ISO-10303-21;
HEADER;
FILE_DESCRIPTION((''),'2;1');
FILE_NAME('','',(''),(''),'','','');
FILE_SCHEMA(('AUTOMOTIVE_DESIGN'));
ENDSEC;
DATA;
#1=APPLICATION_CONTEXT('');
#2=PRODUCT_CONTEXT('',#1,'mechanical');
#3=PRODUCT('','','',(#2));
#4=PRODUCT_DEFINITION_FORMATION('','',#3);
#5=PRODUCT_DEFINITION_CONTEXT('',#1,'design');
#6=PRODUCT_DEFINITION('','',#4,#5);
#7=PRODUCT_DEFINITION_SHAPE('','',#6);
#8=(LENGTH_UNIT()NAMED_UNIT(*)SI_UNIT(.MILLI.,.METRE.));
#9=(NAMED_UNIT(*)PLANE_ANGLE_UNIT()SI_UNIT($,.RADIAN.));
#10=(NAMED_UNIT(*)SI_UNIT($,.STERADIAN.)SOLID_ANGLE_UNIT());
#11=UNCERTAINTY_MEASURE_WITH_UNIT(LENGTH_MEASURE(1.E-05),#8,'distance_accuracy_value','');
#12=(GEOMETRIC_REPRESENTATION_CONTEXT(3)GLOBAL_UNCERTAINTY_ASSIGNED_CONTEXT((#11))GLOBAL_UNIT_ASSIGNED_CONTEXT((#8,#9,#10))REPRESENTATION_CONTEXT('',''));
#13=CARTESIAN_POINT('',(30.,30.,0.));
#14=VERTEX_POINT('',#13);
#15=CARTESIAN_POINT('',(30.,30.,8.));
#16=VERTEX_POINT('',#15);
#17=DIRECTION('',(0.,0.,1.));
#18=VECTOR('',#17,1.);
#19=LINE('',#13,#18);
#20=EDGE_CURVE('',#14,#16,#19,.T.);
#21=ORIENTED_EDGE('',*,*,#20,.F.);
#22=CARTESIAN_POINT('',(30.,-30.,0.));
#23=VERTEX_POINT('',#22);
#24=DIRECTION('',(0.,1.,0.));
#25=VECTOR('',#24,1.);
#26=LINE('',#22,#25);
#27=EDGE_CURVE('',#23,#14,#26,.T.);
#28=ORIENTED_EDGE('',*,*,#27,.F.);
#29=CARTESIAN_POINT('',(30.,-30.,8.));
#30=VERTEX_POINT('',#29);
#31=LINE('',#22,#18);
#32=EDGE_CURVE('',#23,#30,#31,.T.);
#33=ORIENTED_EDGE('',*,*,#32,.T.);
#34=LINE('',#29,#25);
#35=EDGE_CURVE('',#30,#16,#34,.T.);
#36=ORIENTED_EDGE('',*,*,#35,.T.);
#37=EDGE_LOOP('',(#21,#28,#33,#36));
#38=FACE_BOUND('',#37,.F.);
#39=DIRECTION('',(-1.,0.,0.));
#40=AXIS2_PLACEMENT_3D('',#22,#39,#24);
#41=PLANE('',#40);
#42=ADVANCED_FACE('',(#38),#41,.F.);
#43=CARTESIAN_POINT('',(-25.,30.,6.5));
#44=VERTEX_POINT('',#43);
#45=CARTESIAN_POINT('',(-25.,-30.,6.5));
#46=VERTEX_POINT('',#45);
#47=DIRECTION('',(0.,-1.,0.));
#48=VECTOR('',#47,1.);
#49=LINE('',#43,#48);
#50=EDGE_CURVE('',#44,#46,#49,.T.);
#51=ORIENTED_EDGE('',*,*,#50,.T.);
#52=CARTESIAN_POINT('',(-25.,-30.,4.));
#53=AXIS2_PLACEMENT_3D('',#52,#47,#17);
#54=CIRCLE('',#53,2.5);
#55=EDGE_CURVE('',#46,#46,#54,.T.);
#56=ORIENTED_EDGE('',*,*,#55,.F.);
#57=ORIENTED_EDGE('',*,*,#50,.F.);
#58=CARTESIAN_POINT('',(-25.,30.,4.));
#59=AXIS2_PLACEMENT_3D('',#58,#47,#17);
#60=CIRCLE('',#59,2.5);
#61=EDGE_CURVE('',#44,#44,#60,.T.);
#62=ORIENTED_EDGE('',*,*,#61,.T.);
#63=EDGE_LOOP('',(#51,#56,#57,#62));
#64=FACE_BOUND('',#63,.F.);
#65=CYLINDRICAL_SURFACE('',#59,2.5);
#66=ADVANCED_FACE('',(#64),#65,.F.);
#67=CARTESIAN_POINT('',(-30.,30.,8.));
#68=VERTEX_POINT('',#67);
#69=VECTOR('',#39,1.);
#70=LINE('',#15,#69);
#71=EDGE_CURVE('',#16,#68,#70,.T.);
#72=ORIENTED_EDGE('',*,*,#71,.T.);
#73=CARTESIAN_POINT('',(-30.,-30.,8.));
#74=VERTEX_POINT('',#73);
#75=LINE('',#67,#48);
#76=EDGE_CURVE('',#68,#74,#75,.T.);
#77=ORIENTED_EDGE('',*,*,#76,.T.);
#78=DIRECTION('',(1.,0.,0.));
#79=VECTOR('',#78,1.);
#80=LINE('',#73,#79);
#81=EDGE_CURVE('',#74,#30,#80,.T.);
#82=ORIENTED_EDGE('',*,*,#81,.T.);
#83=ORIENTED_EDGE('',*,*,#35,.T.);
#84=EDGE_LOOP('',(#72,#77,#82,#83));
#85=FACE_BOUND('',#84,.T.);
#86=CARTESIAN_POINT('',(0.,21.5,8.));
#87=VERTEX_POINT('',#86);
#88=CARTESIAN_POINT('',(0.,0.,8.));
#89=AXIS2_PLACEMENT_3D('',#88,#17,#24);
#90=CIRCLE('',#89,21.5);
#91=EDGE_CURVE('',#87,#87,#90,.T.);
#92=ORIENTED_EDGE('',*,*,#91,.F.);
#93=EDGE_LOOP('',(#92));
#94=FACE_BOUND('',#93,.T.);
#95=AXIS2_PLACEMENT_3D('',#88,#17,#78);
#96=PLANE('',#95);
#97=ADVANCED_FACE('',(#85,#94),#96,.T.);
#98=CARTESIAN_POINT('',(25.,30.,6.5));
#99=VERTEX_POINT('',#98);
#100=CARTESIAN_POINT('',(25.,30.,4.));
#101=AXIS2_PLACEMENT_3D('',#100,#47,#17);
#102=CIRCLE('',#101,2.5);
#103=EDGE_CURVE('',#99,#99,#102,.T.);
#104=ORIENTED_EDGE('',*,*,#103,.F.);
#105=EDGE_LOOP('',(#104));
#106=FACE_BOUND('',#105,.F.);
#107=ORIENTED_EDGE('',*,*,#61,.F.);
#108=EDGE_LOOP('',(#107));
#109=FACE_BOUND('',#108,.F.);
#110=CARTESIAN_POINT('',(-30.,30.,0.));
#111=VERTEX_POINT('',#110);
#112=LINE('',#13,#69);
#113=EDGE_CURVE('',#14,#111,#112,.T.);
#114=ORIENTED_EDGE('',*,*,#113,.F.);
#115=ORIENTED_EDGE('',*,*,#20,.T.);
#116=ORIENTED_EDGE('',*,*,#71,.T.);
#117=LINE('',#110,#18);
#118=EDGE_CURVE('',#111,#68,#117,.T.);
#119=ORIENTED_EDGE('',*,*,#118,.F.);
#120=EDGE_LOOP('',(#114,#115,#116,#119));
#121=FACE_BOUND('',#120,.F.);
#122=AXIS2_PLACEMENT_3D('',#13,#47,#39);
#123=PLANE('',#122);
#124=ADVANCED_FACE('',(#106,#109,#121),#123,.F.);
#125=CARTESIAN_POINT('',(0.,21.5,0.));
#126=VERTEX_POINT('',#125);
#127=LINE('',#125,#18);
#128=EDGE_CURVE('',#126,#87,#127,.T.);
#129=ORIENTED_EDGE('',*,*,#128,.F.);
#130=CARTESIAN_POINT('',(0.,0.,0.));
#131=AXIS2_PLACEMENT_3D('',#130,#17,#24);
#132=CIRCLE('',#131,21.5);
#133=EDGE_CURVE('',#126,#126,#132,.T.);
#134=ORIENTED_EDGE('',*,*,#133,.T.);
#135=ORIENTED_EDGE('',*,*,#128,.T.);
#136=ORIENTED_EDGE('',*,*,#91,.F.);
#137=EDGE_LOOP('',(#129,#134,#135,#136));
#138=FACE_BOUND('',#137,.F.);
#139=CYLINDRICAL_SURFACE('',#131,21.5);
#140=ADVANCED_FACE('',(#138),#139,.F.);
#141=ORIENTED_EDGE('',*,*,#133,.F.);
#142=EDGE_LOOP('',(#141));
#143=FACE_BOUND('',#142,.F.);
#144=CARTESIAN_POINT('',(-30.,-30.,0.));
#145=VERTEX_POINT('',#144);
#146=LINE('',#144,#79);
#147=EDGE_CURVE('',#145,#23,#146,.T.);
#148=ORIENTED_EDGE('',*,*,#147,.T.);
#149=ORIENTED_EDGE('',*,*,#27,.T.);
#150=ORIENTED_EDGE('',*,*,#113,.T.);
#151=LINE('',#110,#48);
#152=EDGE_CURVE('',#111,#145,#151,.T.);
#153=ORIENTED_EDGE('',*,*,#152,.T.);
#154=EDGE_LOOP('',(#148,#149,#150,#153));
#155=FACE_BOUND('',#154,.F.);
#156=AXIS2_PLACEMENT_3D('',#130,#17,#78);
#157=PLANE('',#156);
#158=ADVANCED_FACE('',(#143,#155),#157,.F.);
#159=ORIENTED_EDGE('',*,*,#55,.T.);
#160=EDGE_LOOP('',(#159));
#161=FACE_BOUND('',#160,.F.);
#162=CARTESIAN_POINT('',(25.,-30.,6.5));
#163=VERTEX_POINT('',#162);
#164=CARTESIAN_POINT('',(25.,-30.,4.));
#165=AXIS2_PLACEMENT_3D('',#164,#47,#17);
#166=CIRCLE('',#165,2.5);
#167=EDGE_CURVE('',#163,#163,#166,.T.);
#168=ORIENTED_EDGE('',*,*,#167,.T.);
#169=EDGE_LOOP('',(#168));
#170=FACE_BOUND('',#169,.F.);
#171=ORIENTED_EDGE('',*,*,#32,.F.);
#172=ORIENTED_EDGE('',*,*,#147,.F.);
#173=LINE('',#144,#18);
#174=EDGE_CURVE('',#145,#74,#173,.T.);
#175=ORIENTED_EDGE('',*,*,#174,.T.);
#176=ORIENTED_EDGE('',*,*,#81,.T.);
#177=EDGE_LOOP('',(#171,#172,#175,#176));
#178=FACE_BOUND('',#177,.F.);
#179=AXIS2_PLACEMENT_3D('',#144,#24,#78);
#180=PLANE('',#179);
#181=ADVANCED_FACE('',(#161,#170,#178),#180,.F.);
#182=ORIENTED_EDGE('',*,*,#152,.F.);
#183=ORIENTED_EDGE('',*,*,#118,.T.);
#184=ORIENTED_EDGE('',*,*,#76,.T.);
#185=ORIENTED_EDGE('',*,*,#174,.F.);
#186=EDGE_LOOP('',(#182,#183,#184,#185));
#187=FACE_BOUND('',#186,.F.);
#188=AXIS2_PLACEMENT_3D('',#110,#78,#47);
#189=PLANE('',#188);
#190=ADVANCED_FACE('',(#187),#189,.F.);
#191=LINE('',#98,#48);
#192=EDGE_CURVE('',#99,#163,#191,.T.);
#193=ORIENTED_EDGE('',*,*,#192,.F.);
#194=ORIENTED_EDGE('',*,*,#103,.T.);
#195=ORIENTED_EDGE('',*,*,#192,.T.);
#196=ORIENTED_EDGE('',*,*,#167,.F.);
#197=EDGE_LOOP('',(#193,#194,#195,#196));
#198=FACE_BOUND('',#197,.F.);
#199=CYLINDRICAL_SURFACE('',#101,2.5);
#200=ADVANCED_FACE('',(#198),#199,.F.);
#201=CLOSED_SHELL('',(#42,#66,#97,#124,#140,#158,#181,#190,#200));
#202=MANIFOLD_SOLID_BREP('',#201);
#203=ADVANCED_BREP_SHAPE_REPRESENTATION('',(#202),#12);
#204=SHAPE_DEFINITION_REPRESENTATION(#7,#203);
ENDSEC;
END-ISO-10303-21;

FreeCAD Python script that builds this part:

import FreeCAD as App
import Part
import Sketcher

doc = App.newDocument("Part")
body = doc.addObject("PartDesign::Body", "Body")

sketch1 = body.newObject("Sketcher::SketchObject", "Sketch")
sketch1.AttachmentSupport = (doc.getObject("XY_Plane"), [""])
sketch1.MapMode = "FlatFace"
sketch1.addGeometry([
    Part.LineSegment(App.Vector(-30, 30, 0), App.Vector(-30, -30, 0)),
    Part.LineSegment(App.Vector(-30, -30, 0), App.Vector(30, -30, 0)),
    Part.LineSegment(App.Vector(30, -30, 0), App.Vector(30, 30, 0)),
    Part.LineSegment(App.Vector(30, 30, 0), App.Vector(-30, 30, 0)),
], False)
sketch1.addConstraint([
    Sketcher.Constraint("Coincident", 0, 2, 1, 1),
    Sketcher.Constraint("Coincident", 1, 2, 2, 1),
    Sketcher.Constraint("Coincident", 2, 2, 3, 1),
    Sketcher.Constraint("Coincident", 3, 2, 0, 1),
    Sketcher.Constraint("Vertical", 0),
    Sketcher.Constraint("Horizontal", 1),
    Sketcher.Constraint("Vertical", 2),
    Sketcher.Constraint("Horizontal", 3),
    Sketcher.Constraint("Symmetric", 0, 2, 2, 2, -1, 1),
    Sketcher.Constraint("Equal", 3, 0),
    Sketcher.Constraint("DistanceX", 1, 1, 1, 2, 60.0),
])
pad1 = body.newObject("PartDesign::Pad", "Pad")
pad1.Profile = sketch1
pad1.Length = 8

sketch2 = body.newObject("Sketcher::SketchObject", "Sketch001")
sketch2.AttachmentSupport = (doc.getObject("XY_Plane"), [""])
sketch2.MapMode = "FlatFace"
sketch2.addGeometry(Part.Circle(App.Vector(0, 0, 0), App.Vector(0, 0, 1), 22), False)
sketch2.addConstraint([
    Sketcher.Constraint("Coincident", 0, 3, -1, 1),
    Sketcher.Constraint("Diameter", 0, 43.0),
])
doc.recompute()
hole = body.newObject("PartDesign::Hole", "Hole")
hole.Profile = sketch2
hole.ThreadType = "None"
hole.Diameter = 43
hole.DepthType = "ThroughAll"
hole.Reversed = True

sketch3 = body.newObject("Sketcher::SketchObject", "Sketch002")
sketch3.AttachmentSupport = (doc.getObject("XZ_Plane"), [""])
sketch3.MapMode = "FlatFace"
sketch3.AttachmentOffset = App.Placement(App.Vector(0, 0, -30), App.Rotation())
sketch3.addGeometry([
    Part.Circle(App.Vector(-25, 4, 0), App.Vector(0, 0, 1), 2.5),
    Part.Circle(App.Vector(25, 4, 0), App.Vector(0, 0, 1), 2.5),
], False)
sketch3.addConstraint([
    Sketcher.Constraint("Equal", 0, 1),
    Sketcher.Constraint("Symmetric", 0, 3, 1, 3, -2),
    Sketcher.Constraint("Diameter", 0, 5.0),
    Sketcher.Constraint("DistanceX", 0, 3, -1, 1, 25.0),
    Sketcher.Constraint("DistanceY", -1, 1, 0, 3, 4.0),
])
doc.recompute()
hole2 = body.newObject("PartDesign::Hole", "Hole001")
hole2.Profile = sketch3
hole2.ThreadType = "None"
hole2.Diameter = 5
hole2.DepthType = "ThroughAll"
hole2.Reversed = True

doc.recompute()
